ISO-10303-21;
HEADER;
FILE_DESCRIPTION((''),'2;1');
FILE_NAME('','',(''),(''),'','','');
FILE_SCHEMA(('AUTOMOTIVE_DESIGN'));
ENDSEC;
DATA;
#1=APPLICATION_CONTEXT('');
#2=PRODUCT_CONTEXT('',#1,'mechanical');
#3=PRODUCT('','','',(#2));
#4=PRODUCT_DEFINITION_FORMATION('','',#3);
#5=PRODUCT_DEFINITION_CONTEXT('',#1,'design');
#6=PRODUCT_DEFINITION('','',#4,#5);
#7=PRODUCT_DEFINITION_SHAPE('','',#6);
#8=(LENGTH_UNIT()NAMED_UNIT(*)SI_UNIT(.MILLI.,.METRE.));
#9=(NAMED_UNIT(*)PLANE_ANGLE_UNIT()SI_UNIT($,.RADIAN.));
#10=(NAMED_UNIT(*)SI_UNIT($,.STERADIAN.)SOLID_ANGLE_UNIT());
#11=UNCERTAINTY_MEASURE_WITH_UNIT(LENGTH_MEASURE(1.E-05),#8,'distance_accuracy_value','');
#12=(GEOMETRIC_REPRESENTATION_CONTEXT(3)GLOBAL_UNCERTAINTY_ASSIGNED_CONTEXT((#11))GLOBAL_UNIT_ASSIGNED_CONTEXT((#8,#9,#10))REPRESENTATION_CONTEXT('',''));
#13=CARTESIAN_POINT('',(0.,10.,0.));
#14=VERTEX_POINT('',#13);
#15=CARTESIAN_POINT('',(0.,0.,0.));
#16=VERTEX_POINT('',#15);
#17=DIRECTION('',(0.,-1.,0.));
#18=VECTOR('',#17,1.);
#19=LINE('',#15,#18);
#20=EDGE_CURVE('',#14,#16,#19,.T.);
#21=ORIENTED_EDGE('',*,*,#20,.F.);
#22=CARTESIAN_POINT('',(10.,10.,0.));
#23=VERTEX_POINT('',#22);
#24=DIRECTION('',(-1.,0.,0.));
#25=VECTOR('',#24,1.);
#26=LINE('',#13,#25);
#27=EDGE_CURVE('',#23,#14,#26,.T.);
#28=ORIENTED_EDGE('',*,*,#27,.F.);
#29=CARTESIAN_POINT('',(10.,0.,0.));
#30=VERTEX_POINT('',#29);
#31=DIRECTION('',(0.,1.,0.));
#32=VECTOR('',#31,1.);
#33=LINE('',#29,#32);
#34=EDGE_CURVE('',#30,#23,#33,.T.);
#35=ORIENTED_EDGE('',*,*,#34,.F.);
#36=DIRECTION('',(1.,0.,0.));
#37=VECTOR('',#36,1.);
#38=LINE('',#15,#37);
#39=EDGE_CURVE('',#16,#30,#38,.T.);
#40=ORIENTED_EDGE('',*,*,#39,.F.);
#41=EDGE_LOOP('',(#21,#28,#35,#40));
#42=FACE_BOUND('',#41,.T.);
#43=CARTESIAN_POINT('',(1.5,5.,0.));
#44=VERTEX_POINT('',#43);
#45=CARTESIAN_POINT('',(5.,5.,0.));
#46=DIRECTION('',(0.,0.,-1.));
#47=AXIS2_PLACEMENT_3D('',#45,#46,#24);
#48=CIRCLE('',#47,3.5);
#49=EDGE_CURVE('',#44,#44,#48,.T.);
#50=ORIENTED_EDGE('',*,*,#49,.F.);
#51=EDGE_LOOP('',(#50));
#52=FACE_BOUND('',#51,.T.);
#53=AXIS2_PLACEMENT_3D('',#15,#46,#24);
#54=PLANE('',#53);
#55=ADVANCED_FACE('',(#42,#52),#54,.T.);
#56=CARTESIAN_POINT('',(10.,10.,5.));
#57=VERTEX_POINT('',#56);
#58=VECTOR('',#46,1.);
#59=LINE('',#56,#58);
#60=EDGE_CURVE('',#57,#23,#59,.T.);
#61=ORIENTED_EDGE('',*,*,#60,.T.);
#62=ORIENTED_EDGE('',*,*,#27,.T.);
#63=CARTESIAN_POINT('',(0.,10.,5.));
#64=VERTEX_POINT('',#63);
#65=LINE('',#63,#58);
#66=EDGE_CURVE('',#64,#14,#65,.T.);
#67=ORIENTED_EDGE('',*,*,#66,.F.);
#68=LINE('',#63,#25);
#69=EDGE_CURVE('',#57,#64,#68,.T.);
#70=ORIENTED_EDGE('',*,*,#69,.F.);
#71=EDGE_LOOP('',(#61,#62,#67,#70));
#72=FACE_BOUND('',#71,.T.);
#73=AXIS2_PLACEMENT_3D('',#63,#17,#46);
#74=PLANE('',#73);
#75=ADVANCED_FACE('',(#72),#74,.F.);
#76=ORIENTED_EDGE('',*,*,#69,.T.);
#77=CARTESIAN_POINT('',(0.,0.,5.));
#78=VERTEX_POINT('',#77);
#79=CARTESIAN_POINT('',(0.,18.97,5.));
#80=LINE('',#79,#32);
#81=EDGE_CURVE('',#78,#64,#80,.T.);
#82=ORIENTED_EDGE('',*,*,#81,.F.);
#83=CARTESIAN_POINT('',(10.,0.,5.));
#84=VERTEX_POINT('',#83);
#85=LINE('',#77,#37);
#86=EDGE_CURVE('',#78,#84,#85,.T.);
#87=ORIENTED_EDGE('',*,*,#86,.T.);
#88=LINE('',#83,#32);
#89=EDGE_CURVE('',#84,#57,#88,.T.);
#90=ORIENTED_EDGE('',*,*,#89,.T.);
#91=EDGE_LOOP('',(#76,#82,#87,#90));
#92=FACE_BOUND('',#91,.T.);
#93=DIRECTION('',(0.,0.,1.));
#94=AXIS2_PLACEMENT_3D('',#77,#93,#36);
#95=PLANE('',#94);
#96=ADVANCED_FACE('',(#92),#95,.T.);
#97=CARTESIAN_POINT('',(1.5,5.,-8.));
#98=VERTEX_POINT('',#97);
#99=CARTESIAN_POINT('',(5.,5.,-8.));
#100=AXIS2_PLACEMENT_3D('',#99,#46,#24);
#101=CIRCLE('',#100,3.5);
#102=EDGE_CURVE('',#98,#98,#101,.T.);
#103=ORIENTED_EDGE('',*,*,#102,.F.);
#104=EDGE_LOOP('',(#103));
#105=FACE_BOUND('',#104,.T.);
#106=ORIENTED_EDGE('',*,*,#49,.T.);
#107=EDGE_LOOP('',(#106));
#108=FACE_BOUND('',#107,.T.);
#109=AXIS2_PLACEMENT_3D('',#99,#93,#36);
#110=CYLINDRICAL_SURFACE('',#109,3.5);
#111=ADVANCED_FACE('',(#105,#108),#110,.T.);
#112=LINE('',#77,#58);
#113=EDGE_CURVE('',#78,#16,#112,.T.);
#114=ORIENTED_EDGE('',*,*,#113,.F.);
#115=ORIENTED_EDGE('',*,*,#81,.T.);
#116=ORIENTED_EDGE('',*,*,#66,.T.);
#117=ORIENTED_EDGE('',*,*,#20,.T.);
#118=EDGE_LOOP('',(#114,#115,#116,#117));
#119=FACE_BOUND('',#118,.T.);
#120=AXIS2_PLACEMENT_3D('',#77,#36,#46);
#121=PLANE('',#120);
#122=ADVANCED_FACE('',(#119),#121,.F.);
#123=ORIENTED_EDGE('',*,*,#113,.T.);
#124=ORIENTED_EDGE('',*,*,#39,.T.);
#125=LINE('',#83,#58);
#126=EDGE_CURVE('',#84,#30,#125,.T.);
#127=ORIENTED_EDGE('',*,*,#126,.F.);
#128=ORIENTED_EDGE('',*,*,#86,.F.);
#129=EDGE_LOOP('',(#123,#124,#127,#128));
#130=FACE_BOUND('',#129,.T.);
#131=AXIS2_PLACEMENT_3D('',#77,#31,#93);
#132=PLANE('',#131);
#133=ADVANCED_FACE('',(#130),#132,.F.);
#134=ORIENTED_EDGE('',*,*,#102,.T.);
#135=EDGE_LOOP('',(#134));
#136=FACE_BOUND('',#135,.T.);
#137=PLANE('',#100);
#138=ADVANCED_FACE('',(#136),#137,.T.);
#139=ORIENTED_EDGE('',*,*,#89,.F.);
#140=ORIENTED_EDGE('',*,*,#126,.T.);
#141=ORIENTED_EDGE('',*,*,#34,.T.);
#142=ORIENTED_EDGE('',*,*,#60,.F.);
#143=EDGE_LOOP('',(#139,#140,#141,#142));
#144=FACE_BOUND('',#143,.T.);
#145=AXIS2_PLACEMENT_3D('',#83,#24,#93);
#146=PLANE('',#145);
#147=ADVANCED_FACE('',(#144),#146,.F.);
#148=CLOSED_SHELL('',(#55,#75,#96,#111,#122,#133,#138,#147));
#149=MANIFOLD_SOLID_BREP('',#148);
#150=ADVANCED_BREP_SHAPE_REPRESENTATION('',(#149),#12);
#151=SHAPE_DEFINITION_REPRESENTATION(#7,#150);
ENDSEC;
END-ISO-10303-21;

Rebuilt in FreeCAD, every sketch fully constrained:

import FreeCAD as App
import Part
import Sketcher


def add_polygon(sketch, points):
    """Adds a closed chain of lines whose ends are joined by coincident constraints."""
    first, n = sketch.GeometryCount, len(points)
    for a, b in zip(points, points[1:] + points[:1]):
        sketch.addGeometry(Part.LineSegment(App.Vector(*a, 0), App.Vector(*b, 0)), False)
    for i in range(n):
        sketch.addConstraint(Sketcher.Constraint("Coincident", first + i, 2, first + (i + 1) % n, 1))

doc = App.newDocument("Part")
body = doc.addObject("PartDesign::Body", "Body")

sketch1 = body.newObject("Sketcher::SketchObject", "Sketch")
sketch1.AttachmentSupport = (doc.getObject("XY_Plane"), [""])
sketch1.MapMode = "FlatFace"
add_polygon(sketch1, [(0, 10), (0, 0), (10, 0), (10, 10)])
sketch1.addConstraint(Sketcher.Constraint("Vertical", 0))
sketch1.addConstraint(Sketcher.Constraint("Horizontal", 1))
sketch1.addConstraint(Sketcher.Constraint("Vertical", 2))
sketch1.addConstraint(Sketcher.Constraint("Horizontal", 3))
sketch1.addConstraint(Sketcher.Constraint("Coincident", 0, 2, -1, 1))
sketch1.addConstraint(Sketcher.Constraint("Equal", 3, 0))
sketch1.addConstraint(Sketcher.Constraint("DistanceX", 1, 1, 1, 2, 10.0))
pad1 = body.newObject("PartDesign::Pad", "Pad")
pad1.Profile = sketch1
pad1.Length = 5

sketch2 = body.newObject("Sketcher::SketchObject", "Sketch001")
sketch2.AttachmentSupport = (doc.getObject("XY_Plane"), [""])
sketch2.MapMode = "FlatFace"
sketch2.AttachmentOffset = App.Placement(App.Vector(0, 0, 5), App.Rotation())
add_polygon(sketch2, [(0, 19), (0, -9), (15, -9), (15, 19)])
sketch2.addConstraint(Sketcher.Constraint("Vertical", 0))
sketch2.addConstraint(Sketcher.Constraint("Horizontal", 1))
sketch2.addConstraint(Sketcher.Constraint("Vertical", 2))
sketch2.addConstraint(Sketcher.Constraint("Horizontal", 3))
sketch2.addConstraint(Sketcher.Constraint("PointOnObject", 0, 2, -2))
sketch2.addConstraint(Sketcher.Constraint("DistanceX", 1, 1, 1, 2, 15.0))
sketch2.addConstraint(Sketcher.Constraint("DistanceY", 0, 2, 0, 1, 27.94))
sketch2.addConstraint(Sketcher.Constraint("DistanceY", 0, 2, -1, 1, 8.97))
pad2 = body.newObject("PartDesign::Pad", "Pad001")
pad2.Profile = sketch2
pad2.Length = 4

sketch3 = body.newObject("Sketcher::SketchObject", "Sketch002")
sketch3.AttachmentSupport = (doc.getObject("XY_Plane"), [""])
sketch3.MapMode = "FlatFace"
sketch3.AttachmentOffset = App.Placement(App.Vector(0, 0, 9), App.Rotation())
add_polygon(sketch3, [(12.7, 19), (12.7, -9), (15, -9), (15, 19)])
sketch3.addConstraint(Sketcher.Constraint("Vertical", 0))
sketch3.addConstraint(Sketcher.Constraint("Horizontal", 1))
sketch3.addConstraint(Sketcher.Constraint("Vertical", 2))
sketch3.addConstraint(Sketcher.Constraint("Horizontal", 3))
sketch3.addConstraint(Sketcher.Constraint("DistanceX", -1, 1, 1, 2, 15.0))
sketch3.addConstraint(Sketcher.Constraint("DistanceY", 0, 2, 0, 1, 27.94))
sketch3.addConstraint(Sketcher.Constraint("DistanceY", 0, 2, -1, 1, 8.97))
sketch3.addConstraint(Sketcher.Constraint("DistanceX", 1, 1, 1, 2, 2.254485))
pad3 = body.newObject("PartDesign::Pad", "Pad002")
pad3.Profile = sketch3
pad3.Length = 4

sketch4 = body.newObject("Sketcher::SketchObject", "Sketch003")
sketch4.AttachmentSupport = (doc.getObject("YZ_Plane"), [""])
sketch4.MapMode = "FlatFace"
sketch4.AttachmentOffset = App.Placement(App.Vector(0, 0, 12.745515), App.Rotation())
sketch4.addGeometry(Part.Circle(App.Vector(16.6, 11.3, 0), App.Vector(0, 0, 1), 1.5), False)
sketch4.addGeometry(Part.Circle(App.Vector(-6.6, 11.3, 0), App.Vector(0, 0, 1), 1.5), False)
sketch4.addConstraint(Sketcher.Constraint("Equal", 0, 1))
sketch4.addConstraint(Sketcher.Constraint("Horizontal", 0, 3, 1, 3))
sketch4.addConstraint(Sketcher.Constraint("Diameter", 0, 3.0))
sketch4.addConstraint(Sketcher.Constraint("DistanceY", -1, 1, 0, 3, 11.286))
sketch4.addConstraint(Sketcher.Constraint("DistanceX", 1, 3, -1, 1, 6.645))
sketch4.addConstraint(Sketcher.Constraint("DistanceX", -1, 1, 0, 3, 16.64426))
pocket1 = body.newObject("PartDesign::Pocket", "Pocket")
pocket1.Profile = sketch4
pocket1.Length = 40
pocket1.Reversed = True

sketch5 = body.newObject("Sketcher::SketchObject", "Sketch004")
sketch5.AttachmentSupport = (doc.getObject("XY_Plane"), [""])
sketch5.MapMode = "FlatFace"
sketch5.addGeometry(Part.Circle(App.Vector(5, 5, 0), App.Vector(0, 0, 1), 3.5), False)
sketch5.addConstraint(Sketcher.Constraint("Diameter", 0, 7.0))
sketch5.addConstraint(Sketcher.Constraint("DistanceX", -1, 1, 0, 3, 5.0))
sketch5.addConstraint(Sketcher.Constraint("DistanceY", -1, 1, 0, 3, 5.0))
pad4 = body.newObject("PartDesign::Pad", "Pad003")
pad4.Profile = sketch5
pad4.Length = 8
pad4.Reversed = True

sketch6 = body.newObject("Sketcher::SketchObject", "Sketch005")
sketch6.AttachmentSupport = (doc.getObject("XY_Plane"), [""])
sketch6.MapMode = "FlatFace"
sketch6.AttachmentOffset = App.Placement(App.Vector(0, 0, 13), App.Rotation())
add_polygon(sketch6, [(0, 19), (0, -9), (15, -9), (15, 19)])
sketch6.addConstraint(Sketcher.Constraint("Vertical", 0))
sketch6.addConstraint(Sketcher.Constraint("Horizontal", 1))
sketch6.addConstraint(Sketcher.Constraint("Vertical", 2))
sketch6.addConstraint(Sketcher.Constraint("Horizontal", 3))
sketch6.addConstraint(Sketcher.Constraint("PointOnObject", 0, 2, -2))
sketch6.addConstraint(Sketcher.Constraint("DistanceX", 1, 1, 1, 2, 15.0))
sketch6.addConstraint(Sketcher.Constraint("DistanceY", 0, 2, 0, 1, 27.94))
sketch6.addConstraint(Sketcher.Constraint("DistanceY", 0, 2, -1, 1, 8.97))
pocket2 = body.newObject("PartDesign::Pocket", "Pocket001")
pocket2.Profile = sketch6
pocket2.Length = 8

doc.recompute()
